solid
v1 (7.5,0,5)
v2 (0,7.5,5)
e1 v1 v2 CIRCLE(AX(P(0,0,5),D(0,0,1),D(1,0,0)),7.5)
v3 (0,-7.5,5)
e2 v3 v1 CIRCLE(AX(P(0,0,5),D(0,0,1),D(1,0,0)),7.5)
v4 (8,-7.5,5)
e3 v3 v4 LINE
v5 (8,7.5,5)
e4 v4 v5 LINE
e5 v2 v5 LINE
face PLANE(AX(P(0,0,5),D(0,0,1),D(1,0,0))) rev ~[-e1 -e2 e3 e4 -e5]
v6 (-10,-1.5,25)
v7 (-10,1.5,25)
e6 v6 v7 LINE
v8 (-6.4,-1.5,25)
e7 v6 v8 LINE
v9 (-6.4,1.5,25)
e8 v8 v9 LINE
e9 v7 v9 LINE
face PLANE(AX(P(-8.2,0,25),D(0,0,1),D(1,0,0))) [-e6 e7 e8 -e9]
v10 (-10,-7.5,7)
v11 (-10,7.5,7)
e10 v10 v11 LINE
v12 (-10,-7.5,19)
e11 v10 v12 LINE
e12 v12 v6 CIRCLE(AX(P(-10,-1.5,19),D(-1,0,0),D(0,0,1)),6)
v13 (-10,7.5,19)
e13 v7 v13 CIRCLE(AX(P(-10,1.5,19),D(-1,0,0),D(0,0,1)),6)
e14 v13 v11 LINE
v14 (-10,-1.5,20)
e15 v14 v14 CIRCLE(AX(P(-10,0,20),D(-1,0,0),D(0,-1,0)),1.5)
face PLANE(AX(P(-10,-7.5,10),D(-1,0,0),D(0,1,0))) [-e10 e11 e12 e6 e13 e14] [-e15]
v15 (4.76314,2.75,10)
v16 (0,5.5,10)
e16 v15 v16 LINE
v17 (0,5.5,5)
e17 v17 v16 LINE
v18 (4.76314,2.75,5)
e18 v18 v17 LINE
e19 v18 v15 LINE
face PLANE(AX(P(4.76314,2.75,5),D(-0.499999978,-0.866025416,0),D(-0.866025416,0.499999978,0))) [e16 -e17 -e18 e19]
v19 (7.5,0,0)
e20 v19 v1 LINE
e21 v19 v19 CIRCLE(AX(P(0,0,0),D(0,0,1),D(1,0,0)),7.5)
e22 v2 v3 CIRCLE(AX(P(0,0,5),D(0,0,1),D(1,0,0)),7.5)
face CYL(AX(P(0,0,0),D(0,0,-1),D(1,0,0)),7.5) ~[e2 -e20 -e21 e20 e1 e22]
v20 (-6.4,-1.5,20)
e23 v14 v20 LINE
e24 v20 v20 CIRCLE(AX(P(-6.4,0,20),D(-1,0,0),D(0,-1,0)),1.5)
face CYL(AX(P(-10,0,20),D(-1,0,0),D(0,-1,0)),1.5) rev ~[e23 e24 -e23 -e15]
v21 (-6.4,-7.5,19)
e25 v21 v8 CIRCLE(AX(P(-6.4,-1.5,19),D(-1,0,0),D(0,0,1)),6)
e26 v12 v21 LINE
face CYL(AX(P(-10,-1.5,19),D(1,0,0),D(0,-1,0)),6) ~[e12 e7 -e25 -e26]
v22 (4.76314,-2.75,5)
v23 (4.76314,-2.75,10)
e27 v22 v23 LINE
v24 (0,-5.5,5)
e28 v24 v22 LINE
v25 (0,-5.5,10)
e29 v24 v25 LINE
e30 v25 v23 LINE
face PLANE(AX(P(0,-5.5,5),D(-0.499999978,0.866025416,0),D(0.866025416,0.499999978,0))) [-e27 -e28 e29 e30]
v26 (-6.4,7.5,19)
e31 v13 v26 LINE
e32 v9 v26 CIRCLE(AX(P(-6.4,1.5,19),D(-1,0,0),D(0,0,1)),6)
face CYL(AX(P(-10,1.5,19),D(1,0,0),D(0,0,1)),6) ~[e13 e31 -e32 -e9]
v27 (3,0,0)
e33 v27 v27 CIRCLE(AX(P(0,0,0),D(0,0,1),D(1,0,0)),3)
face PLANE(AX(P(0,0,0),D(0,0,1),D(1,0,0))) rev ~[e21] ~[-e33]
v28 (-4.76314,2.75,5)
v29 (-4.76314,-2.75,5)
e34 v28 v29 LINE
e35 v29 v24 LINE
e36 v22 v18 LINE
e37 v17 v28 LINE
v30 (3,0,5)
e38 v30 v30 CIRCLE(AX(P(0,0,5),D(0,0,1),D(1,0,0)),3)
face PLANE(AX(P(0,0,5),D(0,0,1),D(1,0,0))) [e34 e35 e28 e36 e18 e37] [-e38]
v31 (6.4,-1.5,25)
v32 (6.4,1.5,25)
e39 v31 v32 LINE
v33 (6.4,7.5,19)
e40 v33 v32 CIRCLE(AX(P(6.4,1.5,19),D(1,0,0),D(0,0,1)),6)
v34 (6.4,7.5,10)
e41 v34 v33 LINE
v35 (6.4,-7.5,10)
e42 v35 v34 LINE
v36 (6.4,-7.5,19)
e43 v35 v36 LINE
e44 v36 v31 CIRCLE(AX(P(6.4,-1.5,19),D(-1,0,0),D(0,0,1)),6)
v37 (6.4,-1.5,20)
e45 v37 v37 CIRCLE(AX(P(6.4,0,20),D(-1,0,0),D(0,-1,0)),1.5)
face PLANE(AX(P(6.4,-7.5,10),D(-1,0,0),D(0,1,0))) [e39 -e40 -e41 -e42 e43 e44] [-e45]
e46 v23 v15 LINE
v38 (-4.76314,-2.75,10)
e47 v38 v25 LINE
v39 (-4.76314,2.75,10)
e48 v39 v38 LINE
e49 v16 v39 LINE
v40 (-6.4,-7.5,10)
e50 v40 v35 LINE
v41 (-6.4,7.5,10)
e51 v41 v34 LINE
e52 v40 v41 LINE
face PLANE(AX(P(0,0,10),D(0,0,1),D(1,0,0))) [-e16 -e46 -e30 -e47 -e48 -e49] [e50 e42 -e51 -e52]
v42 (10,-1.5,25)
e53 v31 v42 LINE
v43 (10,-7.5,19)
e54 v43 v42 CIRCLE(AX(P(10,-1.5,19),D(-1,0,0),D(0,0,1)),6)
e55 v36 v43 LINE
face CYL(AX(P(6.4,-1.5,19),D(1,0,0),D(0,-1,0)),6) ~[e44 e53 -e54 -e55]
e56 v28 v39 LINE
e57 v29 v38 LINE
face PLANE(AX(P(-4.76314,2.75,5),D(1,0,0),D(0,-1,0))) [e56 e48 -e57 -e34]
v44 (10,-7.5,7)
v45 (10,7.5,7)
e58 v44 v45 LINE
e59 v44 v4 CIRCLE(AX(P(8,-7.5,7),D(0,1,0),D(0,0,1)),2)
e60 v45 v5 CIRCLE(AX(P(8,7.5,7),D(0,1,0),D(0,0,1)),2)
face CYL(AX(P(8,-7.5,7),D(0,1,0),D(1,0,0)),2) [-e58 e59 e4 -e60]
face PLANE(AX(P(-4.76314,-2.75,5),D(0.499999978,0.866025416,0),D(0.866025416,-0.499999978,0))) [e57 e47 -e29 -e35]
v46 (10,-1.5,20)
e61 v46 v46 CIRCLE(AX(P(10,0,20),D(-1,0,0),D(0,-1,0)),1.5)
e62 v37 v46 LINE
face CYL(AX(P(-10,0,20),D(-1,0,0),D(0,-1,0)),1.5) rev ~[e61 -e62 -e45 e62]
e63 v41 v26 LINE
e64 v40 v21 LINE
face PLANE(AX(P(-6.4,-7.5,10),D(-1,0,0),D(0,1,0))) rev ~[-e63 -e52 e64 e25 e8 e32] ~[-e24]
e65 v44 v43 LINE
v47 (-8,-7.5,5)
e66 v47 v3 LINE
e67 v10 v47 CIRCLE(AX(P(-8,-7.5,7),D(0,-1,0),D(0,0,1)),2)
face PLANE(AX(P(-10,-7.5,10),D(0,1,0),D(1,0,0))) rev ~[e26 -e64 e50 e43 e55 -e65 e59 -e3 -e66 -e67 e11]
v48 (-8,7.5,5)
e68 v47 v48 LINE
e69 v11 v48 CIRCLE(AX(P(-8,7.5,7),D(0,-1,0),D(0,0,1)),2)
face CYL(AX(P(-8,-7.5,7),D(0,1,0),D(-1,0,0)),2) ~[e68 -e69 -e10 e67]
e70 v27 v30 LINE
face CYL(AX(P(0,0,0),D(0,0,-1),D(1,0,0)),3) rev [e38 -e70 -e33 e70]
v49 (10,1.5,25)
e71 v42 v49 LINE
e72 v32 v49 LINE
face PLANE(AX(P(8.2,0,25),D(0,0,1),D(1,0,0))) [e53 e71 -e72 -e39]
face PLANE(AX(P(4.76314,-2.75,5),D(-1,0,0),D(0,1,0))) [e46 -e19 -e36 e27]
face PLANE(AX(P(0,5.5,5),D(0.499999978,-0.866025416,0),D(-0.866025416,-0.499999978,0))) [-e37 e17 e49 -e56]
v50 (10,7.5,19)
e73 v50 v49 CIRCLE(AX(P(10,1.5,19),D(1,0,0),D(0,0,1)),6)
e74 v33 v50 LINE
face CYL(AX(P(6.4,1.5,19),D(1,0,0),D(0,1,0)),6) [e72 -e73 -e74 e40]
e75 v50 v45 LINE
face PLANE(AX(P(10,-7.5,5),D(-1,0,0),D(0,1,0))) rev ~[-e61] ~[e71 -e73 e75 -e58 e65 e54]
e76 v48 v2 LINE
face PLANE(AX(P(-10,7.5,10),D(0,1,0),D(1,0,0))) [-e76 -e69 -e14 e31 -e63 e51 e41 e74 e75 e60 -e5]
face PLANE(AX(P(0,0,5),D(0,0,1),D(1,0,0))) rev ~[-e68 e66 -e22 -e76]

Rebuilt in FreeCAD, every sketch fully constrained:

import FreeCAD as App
import Part
import Sketcher

V = App.Vector
Q = App.Units.Quantity


def edges_at(feature, points):
    """Names of the edges that pass closest to the given points."""
    edges = feature.Shape.Edges
    near = lambda p: min(range(len(edges)), key=lambda i: edges[i].distToShape(Part.Vertex(*p))[0])
    return sorted({f"Edge{near(p) + 1}" for p in points})


def add_polygon(sketch, points):
    """Adds a closed chain of lines whose ends are joined by coincident constraints."""
    first, n = sketch.GeometryCount, len(points)
    for a, b in zip(points, points[1:] + points[:1]):
        sketch.addGeometry(Part.LineSegment(App.Vector(*a, 0), App.Vector(*b, 0)), False)
    for i in range(n):
        sketch.addConstraint(Sketcher.Constraint("Coincident", first + i, 2, first + (i + 1) % n, 1))

doc = App.newDocument("Part")
body = doc.addObject("PartDesign::Body", "Body")

sketch1 = doc.addObject("Sketcher::SketchObject", "Sketch")
body.addObject(sketch1)
sketch1.AttachmentSupport = (doc.XY_Plane, [""])
sketch1.MapMode = "FlatFace"
sketch1.addGeometry([
    Part.Circle(V(0, 0, 0), V(0, 0, 1), 7.5),
    Part.Circle(V(0, 0, 0), V(0, 0, 1), 3),
], False)
sketch1.addConstraint([
    Sketcher.Constraint("Coincident", 0, 3, -1, 1),
    Sketcher.Constraint("Coincident", 1, 3, -1, 1),
    Sketcher.Constraint("Diameter", 0, Q("15 mm")),
    Sketcher.Constraint("Diameter", 1, Q("6 mm")),
])
pad1 = doc.addObject("PartDesign::Pad", "Pad")
body.addObject(pad1)
pad1.Profile = sketch1
pad1.Length = 5

sketch2 = doc.addObject("Sketcher::SketchObject", "Sketch001")
body.addObject(sketch2)
sketch2.AttachmentSupport = (doc.XY_Plane, [""])
sketch2.MapMode = "FlatFace"
sketch2.AttachmentOffset = App.Placement(V(0, 0, 5), App.Rotation())
add_polygon(sketch2, [(-10, 7.5), (-10, -7.5), (10, -7.5), (10, 7.5)])
add_polygon(sketch2, [(4.76314, 2.75), (4.76314, -2.75), (0, -5.5), (-4.76314, -2.75), (-4.76314, 2.75), (0, 5.5)])
sketch2.addConstraint([
    Sketcher.Constraint("Vertical", 0),
    Sketcher.Constraint("Horizontal", 1),
    Sketcher.Constraint("Vertical", 2),
    Sketcher.Constraint("Horizontal", 3),
    Sketcher.Constraint("Vertical", 4),
    Sketcher.Constraint("Vertical", 7),
    Sketcher.Constraint("Symmetric", 0, 2, 2, 2, -1, 1),
    Sketcher.Constraint("Symmetric", 4, 2, 7, 2, -1, 1),
    Sketcher.Constraint("Symmetric", 5, 2, 8, 2, -1, 1),
    Sketcher.Constraint("PointOnObject", 5, 2, -2),
    Sketcher.Constraint("Parallel", 6, 9),
    Sketcher.Constraint("Horizontal", 4, 2, 6, 2),
    Sketcher.Constraint("DistanceX", 1, 1, 1, 2, Q("20 mm")),
    Sketcher.Constraint("DistanceY", 0, 2, 0, 1, Q("15 mm")),
    Sketcher.Constraint("Angle", 5, Q("-150.000001 deg")),
    Sketcher.Constraint("DistanceY", 4, 2, 4, 1, Q("5.5 mm")),
    Sketcher.Constraint("DistanceY", 0, 2, 5, 2, Q("2 mm")),
])
pad2 = doc.addObject("PartDesign::Pad", "Pad001")
body.addObject(pad2)
pad2.Profile = sketch2
pad2.Length = 5

sketch3 = doc.addObject("Sketcher::SketchObject", "Sketch002")
body.addObject(sketch3)
sketch3.AttachmentSupport = (doc.XY_Plane, [""])
sketch3.MapMode = "FlatFace"
sketch3.AttachmentOffset = App.Placement(V(0, 0, 10), App.Rotation())
add_polygon(sketch3, [(-10, 7.5), (-10, -7.5), (-6.4, -7.5), (-6.4, 7.5)])
add_polygon(sketch3, [(6.4, 7.5), (6.4, -7.5), (10, -7.5), (10, 7.5)])
sketch3.addConstraint([
    Sketcher.Constraint("Vertical", 0),
    Sketcher.Constraint("Horizontal", 1),
    Sketcher.Constraint("Vertical", 2),
    Sketcher.Constraint("Horizontal", 3),
    Sketcher.Constraint("Vertical", 4),
    Sketcher.Constraint("Horizontal", 5),
    Sketcher.Constraint("Vertical", 6),
    Sketcher.Constraint("Horizontal", 7),
    Sketcher.Constraint("Symmetric", 2, 2, 4, 2, -1, 1),
    Sketcher.Constraint("Symmetric", 0, 2, 6, 2, -1, 1),
    Sketcher.Constraint("Horizontal", 1, 2, 4, 2),
    Sketcher.Constraint("DistanceY", 0, 2, 0, 1, Q("15 mm")),
    Sketcher.Constraint("DistanceX", 1, 1, 1, 2, Q("3.6 mm")),
    Sketcher.Constraint("DistanceX", 0, 2, -1, 1, Q("10 mm")),
])
pad3 = doc.addObject("PartDesign::Pad", "Pad002")
body.addObject(pad3)
pad3.Profile = sketch3
pad3.Length = 15

sketch4 = doc.addObject("Sketcher::SketchObject", "Sketch003")
body.addObject(sketch4)
sketch4.AttachmentSupport = (doc.YZ_Plane, [""])
sketch4.MapMode = "FlatFace"
sketch4.AttachmentOffset = App.Placement(V(0, 0, -10), App.Rotation())
sketch4.addGeometry(Part.Circle(V(0, 20, 0), V(0, 0, 1), 1.5), False)
sketch4.addConstraint([
    Sketcher.Constraint("PointOnObject", 0, 3, -2),
    Sketcher.Constraint("Diameter", 0, Q("3 mm")),
    Sketcher.Constraint("DistanceY", -1, 1, 0, 3, Q("20 mm")),
])
pocket1 = doc.addObject("PartDesign::Pocket", "Pocket")
body.addObject(pocket1)
pocket1.Profile = sketch4
pocket1.Type = "ThroughAll"
pocket1.Reversed = True
doc.recompute()

fillet = doc.addObject("PartDesign::Fillet", "Fillet")
body.addObject(fillet)
fillet.Base = (pocket1, edges_at(pocket1, [(-10, 0, 5), (10, 0, 5)]))
fillet.Radius = 2
doc.recompute()

fillet2 = doc.addObject("PartDesign::Fillet", "Fillet001")
body.addObject(fillet2)
fillet2.Base = (fillet, edges_at(fillet, [
    (-8.2, -7.5, 25),
    (-8.2, 7.5, 25),
    (8.2, 7.5, 25),
    (8.2, -7.5, 25),
]))
fillet2.Radius = 6

doc.recompute()
